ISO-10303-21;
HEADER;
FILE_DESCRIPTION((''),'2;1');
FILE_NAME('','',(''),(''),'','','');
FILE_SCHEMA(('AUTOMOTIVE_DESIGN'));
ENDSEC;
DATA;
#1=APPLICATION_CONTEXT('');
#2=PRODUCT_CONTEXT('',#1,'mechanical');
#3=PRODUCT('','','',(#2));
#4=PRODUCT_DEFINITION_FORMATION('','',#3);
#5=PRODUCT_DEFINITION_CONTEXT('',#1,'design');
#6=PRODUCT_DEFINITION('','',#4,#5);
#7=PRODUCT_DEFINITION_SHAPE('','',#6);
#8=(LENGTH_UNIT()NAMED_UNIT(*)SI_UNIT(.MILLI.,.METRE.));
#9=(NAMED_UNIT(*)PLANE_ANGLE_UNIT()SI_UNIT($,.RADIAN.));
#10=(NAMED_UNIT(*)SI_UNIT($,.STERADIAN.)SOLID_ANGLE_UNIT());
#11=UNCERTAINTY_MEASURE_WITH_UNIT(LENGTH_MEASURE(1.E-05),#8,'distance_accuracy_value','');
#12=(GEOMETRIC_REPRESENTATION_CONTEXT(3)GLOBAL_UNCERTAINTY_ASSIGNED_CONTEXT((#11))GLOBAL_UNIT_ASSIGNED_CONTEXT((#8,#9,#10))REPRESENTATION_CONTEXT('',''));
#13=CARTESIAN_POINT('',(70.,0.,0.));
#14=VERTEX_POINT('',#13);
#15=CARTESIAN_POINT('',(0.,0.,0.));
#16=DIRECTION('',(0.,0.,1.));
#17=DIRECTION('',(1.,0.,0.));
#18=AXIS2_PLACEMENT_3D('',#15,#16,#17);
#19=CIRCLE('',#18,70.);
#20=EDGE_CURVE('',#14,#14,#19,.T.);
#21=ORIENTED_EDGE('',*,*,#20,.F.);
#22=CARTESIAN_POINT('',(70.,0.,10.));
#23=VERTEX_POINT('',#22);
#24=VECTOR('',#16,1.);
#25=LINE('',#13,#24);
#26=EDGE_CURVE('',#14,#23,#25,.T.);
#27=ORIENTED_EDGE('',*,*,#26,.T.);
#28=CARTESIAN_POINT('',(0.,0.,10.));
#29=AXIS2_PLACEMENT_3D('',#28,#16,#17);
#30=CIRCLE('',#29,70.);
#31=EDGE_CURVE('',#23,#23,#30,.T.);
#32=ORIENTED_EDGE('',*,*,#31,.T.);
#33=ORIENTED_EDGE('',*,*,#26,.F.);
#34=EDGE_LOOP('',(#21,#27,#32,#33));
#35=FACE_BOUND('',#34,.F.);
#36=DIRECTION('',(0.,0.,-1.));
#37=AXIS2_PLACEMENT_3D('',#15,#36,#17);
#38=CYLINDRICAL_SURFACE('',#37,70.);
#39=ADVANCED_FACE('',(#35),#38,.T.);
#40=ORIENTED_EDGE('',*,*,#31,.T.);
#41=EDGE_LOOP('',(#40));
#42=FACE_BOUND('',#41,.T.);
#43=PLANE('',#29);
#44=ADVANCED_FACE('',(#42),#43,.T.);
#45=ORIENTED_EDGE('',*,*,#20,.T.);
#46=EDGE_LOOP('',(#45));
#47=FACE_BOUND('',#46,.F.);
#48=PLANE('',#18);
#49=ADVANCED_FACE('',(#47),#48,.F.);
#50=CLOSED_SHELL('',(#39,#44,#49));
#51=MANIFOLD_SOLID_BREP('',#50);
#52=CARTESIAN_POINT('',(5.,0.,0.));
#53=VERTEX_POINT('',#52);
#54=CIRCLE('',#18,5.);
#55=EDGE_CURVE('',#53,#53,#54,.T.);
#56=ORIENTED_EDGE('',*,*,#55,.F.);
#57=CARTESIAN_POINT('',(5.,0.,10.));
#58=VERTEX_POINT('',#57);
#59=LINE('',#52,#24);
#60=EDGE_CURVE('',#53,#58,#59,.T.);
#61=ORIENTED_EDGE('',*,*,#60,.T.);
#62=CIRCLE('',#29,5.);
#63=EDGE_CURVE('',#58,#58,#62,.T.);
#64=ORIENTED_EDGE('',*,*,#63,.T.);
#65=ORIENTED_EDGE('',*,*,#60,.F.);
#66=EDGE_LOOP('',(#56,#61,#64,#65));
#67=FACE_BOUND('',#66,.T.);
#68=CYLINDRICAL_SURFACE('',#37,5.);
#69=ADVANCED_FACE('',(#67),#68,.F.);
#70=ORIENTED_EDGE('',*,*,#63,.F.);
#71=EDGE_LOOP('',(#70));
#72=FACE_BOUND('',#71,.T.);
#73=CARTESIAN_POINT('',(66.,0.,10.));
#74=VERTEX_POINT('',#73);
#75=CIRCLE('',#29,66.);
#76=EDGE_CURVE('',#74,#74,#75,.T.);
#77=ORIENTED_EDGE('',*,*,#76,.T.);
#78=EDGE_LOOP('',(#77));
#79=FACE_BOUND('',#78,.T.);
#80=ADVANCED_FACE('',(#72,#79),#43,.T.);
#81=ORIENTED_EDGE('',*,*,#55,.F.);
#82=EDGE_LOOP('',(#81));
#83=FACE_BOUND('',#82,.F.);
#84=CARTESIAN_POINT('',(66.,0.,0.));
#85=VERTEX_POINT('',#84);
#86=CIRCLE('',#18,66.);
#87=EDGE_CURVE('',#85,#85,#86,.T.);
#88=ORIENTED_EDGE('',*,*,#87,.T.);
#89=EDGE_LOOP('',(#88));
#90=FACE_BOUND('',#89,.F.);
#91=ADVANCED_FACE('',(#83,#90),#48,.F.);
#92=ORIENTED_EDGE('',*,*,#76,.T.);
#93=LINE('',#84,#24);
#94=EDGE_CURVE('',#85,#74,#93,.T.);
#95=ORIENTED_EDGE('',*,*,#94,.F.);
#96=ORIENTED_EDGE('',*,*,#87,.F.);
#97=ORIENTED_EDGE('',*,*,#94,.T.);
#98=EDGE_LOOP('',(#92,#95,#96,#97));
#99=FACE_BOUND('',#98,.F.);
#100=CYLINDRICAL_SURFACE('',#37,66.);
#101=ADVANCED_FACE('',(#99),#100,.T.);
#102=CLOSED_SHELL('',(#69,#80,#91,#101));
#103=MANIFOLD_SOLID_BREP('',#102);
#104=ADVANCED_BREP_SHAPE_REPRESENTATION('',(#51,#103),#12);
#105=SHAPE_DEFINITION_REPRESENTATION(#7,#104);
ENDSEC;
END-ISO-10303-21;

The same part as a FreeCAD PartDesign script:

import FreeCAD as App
import Part
import Sketcher

doc = App.newDocument("Part")
params = doc.addObject("Spreadsheet::Sheet", "Params")
for row, (alias, value) in enumerate([
    ("sketch1_diameter", "140 mm"),
    ("pad1_length", "10 mm"),
    ("sketch2_diameter", "132 mm"),
    ("sketch2_diameter2", "10 mm"),
    ("pad2_length", "10 mm"),
], start=1):
    params.set(f"A{row}", alias)
    params.set(f"B{row}", "=" + value)
    params.setAlias(f"B{row}", alias)

body = doc.addObject("PartDesign::Body", "Body")

sketch1 = doc.addObject("Sketcher::SketchObject", "Sketch")
body.addObject(sketch1)
sketch1.AttachmentSupport = (doc.XY_Plane, [""])
sketch1.MapMode = "FlatFace"
sketch1.addGeometry(Part.Circle(App.Vector(0, 0, 0), App.Vector(0, 0, 1), 70), False)
sketch1.addConstraint([
    Sketcher.Constraint("Coincident", 0, 3, -1, 1),
    Sketcher.Constraint("Diameter", 0, 140.0),
])
sketch1.setExpression("Constraints[1]", "Params.sketch1_diameter")
pad1 = doc.addObject("PartDesign::Pad", "Pad")
body.addObject(pad1)
pad1.Profile = sketch1
pad1.setExpression("Length", "Params.pad1_length")
body2 = doc.addObject("PartDesign::Body", "Body001")

sketch2 = doc.addObject("Sketcher::SketchObject", "Sketch001")
body2.addObject(sketch2)
sketch2.AttachmentSupport = (doc.getObject("XY_Plane001"), [""])
sketch2.MapMode = "FlatFace"
sketch2.addGeometry([
    Part.Circle(App.Vector(0, 0, 0), App.Vector(0, 0, 1), 66),
    Part.Circle(App.Vector(0, 0, 0), App.Vector(0, 0, 1), 5),
], False)
sketch2.addConstraint([
    Sketcher.Constraint("Coincident", 0, 3, -1, 1),
    Sketcher.Constraint("Coincident", 1, 3, -1, 1),
    Sketcher.Constraint("Diameter", 0, 132.0),
    Sketcher.Constraint("Diameter", 1, 10.0),
])
sketch2.setExpression("Constraints[2]", "Params.sketch2_diameter")
sketch2.setExpression("Constraints[3]", "Params.sketch2_diameter2")
pad2 = doc.addObject("PartDesign::Pad", "Pad001")
body2.addObject(pad2)
pad2.Profile = sketch2
pad2.setExpression("Length", "Params.pad2_length")

doc.recompute()
